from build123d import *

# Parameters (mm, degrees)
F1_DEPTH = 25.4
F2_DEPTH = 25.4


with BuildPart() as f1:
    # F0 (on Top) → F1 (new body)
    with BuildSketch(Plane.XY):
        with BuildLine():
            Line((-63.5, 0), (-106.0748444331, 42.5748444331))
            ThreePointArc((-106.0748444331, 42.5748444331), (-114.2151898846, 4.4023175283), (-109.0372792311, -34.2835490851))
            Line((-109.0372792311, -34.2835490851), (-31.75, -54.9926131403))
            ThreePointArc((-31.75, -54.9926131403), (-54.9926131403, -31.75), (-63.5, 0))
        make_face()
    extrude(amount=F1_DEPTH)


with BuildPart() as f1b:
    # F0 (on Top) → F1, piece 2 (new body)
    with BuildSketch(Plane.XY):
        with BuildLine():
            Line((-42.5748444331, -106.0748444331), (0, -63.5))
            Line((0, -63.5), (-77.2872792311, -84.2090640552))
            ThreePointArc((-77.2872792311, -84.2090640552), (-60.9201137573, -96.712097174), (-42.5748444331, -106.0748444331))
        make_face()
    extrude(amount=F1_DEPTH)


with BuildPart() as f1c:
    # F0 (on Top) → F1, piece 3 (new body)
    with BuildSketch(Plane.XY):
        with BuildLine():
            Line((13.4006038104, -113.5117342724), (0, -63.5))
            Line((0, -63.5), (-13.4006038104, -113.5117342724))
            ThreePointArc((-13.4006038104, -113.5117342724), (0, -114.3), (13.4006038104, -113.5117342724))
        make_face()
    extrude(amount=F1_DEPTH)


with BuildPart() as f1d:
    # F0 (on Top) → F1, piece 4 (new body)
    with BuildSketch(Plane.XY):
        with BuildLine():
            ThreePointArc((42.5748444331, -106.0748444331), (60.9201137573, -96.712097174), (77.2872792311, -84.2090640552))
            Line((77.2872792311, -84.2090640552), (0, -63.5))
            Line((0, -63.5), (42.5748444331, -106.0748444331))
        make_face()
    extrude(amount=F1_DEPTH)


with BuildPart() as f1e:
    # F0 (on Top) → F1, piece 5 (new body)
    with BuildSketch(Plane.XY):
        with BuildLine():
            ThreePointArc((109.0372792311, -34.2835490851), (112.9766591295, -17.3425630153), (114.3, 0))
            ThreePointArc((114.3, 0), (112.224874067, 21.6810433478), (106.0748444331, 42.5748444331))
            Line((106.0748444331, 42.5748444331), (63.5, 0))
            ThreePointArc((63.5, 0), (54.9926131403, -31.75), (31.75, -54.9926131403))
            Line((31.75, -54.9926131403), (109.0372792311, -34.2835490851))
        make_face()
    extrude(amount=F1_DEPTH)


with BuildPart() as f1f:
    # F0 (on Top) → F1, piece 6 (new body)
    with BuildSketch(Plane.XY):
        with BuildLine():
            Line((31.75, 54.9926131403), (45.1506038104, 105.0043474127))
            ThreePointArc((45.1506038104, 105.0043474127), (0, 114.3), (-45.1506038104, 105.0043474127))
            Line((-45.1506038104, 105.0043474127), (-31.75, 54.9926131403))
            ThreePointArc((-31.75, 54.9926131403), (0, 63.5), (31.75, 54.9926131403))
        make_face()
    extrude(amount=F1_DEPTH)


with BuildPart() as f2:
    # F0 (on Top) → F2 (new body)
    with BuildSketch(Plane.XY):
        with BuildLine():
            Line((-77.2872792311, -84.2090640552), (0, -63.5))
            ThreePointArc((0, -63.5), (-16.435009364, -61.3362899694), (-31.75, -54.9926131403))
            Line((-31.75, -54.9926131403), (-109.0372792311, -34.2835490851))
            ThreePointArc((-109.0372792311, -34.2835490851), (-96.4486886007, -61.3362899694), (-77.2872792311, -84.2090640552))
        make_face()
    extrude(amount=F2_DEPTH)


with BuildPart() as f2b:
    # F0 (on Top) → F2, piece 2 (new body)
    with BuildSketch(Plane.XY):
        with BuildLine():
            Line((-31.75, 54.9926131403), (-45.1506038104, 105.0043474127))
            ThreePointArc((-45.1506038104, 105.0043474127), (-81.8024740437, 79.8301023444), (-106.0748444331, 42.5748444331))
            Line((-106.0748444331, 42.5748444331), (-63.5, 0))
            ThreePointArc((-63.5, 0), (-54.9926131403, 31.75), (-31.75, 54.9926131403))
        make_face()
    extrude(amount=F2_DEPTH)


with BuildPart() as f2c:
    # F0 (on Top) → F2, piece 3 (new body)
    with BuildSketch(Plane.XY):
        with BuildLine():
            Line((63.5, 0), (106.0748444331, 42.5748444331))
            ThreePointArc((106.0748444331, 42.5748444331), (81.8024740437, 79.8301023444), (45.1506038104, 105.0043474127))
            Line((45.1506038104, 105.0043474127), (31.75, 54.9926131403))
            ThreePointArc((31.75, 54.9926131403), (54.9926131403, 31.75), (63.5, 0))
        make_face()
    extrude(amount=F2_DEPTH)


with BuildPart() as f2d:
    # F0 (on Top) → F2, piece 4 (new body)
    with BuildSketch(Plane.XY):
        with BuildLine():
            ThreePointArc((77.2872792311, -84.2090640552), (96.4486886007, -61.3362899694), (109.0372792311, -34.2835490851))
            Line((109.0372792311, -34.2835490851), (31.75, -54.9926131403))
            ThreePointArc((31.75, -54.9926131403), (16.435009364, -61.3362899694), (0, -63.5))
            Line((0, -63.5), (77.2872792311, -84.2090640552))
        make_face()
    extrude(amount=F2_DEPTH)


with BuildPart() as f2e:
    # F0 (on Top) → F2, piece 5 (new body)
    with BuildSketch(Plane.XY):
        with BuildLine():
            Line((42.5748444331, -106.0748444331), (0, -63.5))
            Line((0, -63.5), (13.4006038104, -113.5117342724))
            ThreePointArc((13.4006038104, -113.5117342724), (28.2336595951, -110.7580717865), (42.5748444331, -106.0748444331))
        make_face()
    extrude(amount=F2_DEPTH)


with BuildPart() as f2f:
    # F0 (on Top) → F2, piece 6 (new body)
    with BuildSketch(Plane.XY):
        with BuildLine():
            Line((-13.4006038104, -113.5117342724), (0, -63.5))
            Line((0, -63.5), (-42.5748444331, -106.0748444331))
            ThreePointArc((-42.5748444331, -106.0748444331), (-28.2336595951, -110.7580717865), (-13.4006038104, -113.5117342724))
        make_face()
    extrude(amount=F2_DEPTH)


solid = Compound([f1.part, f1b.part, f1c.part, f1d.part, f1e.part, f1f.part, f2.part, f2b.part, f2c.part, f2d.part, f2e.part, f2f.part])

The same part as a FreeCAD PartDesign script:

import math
import FreeCAD as App
import Part
import Sketcher
Q = App.Units.Quantity

doc = App.newDocument("Part")
params = doc.addObject("Spreadsheet::Sheet", "Params")
for row, (alias, value) in enumerate([
    ("sketch1_radius", "4.5 in"),
    ("sketch1_radius2", "2.5 in"),
    ("pad1_length", "1 in"),
    ("sketch2_radius", "4.5 in"),
    ("pad2_length", "1 in"),
    ("sketch3_radius", "4.5 in"),
    ("pad3_length", "1 in"),
    ("sketch4_radius", "4.5 in"),
    ("pad4_length", "1 in"),
    ("sketch5_radius", "4.5 in"),
    ("sketch5_radius2", "2.5 in"),
    ("pad5_length", "1 in"),
    ("sketch6_radius", "4.5 in"),
    ("sketch6_radius2", "2.5 in"),
    ("pad6_length", "1 in"),
    ("sketch7_radius", "2.5 in"),
    ("sketch7_radius2", "4.5 in"),
    ("pad7_length", "1 in"),
    ("sketch8_radius", "4.5 in"),
    ("sketch8_radius2", "2.5 in"),
    ("pad8_length", "1 in"),
    ("sketch9_radius", "4.5 in"),
    ("sketch9_radius2", "2.5 in"),
    ("pad9_length", "1 in"),
    ("sketch10_radius", "4.5 in"),
    ("sketch10_radius2", "2.5 in"),
    ("pad10_length", "1 in"),
    ("sketch11_radius", "4.5 in"),
    ("pad11_length", "1 in"),
    ("sketch12_radius", "4.5 in"),
    ("pad12_length", "1 in"),
], start=1):
    params.set(f"A{row}", alias)
    params.set(f"B{row}", "=" + value)
    params.setAlias(f"B{row}", alias)

body = doc.addObject("PartDesign::Body", "Body")

sketch1 = body.newObject("Sketcher::SketchObject", "Sketch")
sketch1.AttachmentSupport = (doc.getObject("XY_Plane"), [""])
sketch1.MapMode = "FlatFace"
sketch1.addGeometry([
    Part.LineSegment(App.Vector(-64, 0, 0), App.Vector(-106, 43, 0)),
    Part.ArcOfCircle(Part.Circle(App.Vector(0, 0, 0), App.Vector(0, 0, 1), 114), math.radians(158), math.radians(197)),
    Part.LineSegment(App.Vector(-109, -34, 0), App.Vector(-32, -55, 0)),
    Part.ArcOfCircle(Part.Circle(App.Vector(0, 0, 0), App.Vector(0, 0, 1), 64), math.radians(180), math.radians(240)),
], False)
sketch1.addConstraint([
    Sketcher.Constraint("Coincident", 0, 2, 1, 1),
    Sketcher.Constraint("Coincident", 1, 2, 2, 1),
    Sketcher.Constraint("Coincident", 2, 2, 3, 2),
    Sketcher.Constraint("Coincident", 3, 1, 0, 1),
    Sketcher.Constraint("Coincident", 1, 3, -1, 1),
    Sketcher.Constraint("Coincident", 3, 3, -1, 1),
    Sketcher.Constraint("PointOnObject", 3, 1, -1),
    Sketcher.Constraint("Radius", 1, Q("4.5 in")),
    Sketcher.Constraint("Radius", 3, Q("2.5 in")),
    Sketcher.Constraint("Angle", 0, Q("135 deg")),
    Sketcher.Constraint("Angle", 2, Q("-15 deg")),
    Sketcher.Constraint("DistanceX", 2, 2, -1, 1, Q("1.25 in")),
])
sketch1.setExpression("Constraints[7]", "Params.sketch1_radius")
sketch1.setExpression("Constraints[8]", "Params.sketch1_radius2")
pad1 = body.newObject("PartDesign::Pad", "Pad")
pad1.Profile = sketch1
pad1.setExpression("Length", "Params.pad1_length")
body2 = doc.addObject("PartDesign::Body", "Body001")

sketch2 = body2.newObject("Sketcher::SketchObject", "Sketch001")
sketch2.AttachmentSupport = (doc.getObject("XY_Plane001"), [""])
sketch2.MapMode = "FlatFace"
sketch2.addGeometry([
    Part.LineSegment(App.Vector(-43, -106, 0), App.Vector(0, -64, 0)),
    Part.LineSegment(App.Vector(0, -64, 0), App.Vector(-77, -84, 0)),
    Part.ArcOfCircle(Part.Circle(App.Vector(0, 0, 0), App.Vector(0, 0, 1), 114), math.radians(-133), math.radians(-112)),
], False)
sketch2.addConstraint([
    Sketcher.Constraint("Coincident", 0, 2, 1, 1),
    Sketcher.Constraint("Coincident", 1, 2, 2, 1),
    Sketcher.Constraint("Coincident", 2, 2, 0, 1),
    Sketcher.Constraint("Coincident", 2, 3, -1, 1),
    Sketcher.Constraint("PointOnObject", 0, 2, -2),
    Sketcher.Constraint("Radius", 2, Q("4.5 in")),
    Sketcher.Constraint("Angle", 0, Q("45 deg")),
    Sketcher.Constraint("Angle", 1, Q("-165 deg")),
    Sketcher.Constraint("DistanceY", 0, 2, -1, 1, Q("2.5 in")),
])
sketch2.setExpression("Constraints[5]", "Params.sketch2_radius")
pad2 = body2.newObject("PartDesign::Pad", "Pad001")
pad2.Profile = sketch2
pad2.setExpression("Length", "Params.pad2_length")
body3 = doc.addObject("PartDesign::Body", "Body002")

sketch3 = body3.newObject("Sketcher::SketchObject", "Sketch002")
sketch3.AttachmentSupport = (doc.getObject("XY_Plane002"), [""])
sketch3.MapMode = "FlatFace"
sketch3.addGeometry([
    Part.LineSegment(App.Vector(13, -114, 0), App.Vector(0, -64, 0)),
    Part.LineSegment(App.Vector(0, -64, 0), App.Vector(-13, -114, 0)),
    Part.ArcOfCircle(Part.Circle(App.Vector(0, 0, 0), App.Vector(0, 0, 1), 114), math.radians(-96.73), math.radians(-83.27)),
], False)
sketch3.addConstraint([
    Sketcher.Constraint("Coincident", 0, 2, 1, 1),
    Sketcher.Constraint("Coincident", 1, 2, 2, 1),
    Sketcher.Constraint("Coincident", 2, 2, 0, 1),
    Sketcher.Constraint("Coincident", 2, 3, -1, 1),
    Sketcher.Constraint("PointOnObject", 0, 2, -2),
    Sketcher.Constraint("Horizontal", 1, 2, 2, 2),
    Sketcher.Constraint("Radius", 2, Q("4.5 in")),
    Sketcher.Constraint("Angle", 0, Q("105 deg")),
    Sketcher.Constraint("DistanceY", 0, 2, -1, 1, Q("2.5 in")),
])
sketch3.setExpression("Constraints[6]", "Params.sketch3_radius")
pad3 = body3.newObject("PartDesign::Pad", "Pad002")
pad3.Profile = sketch3
pad3.setExpression("Length", "Params.pad3_length")
body4 = doc.addObject("PartDesign::Body", "Body003")

sketch4 = body4.newObject("Sketcher::SketchObject", "Sketch003")
sketch4.AttachmentSupport = (doc.getObject("XY_Plane003"), [""])
sketch4.MapMode = "FlatFace"
sketch4.addGeometry([
    Part.ArcOfCircle(Part.Circle(App.Vector(0, 0, 0), App.Vector(0, 0, 1), 114), math.radians(-68), math.radians(-47)),
    Part.LineSegment(App.Vector(77, -84, 0), App.Vector(0, -64, 0)),
    Part.LineSegment(App.Vector(0, -64, 0), App.Vector(43, -106, 0)),
], False)
sketch4.addConstraint([
    Sketcher.Constraint("Coincident", 0, 2, 1, 1),
    Sketcher.Constraint("Coincident", 1, 2, 2, 1),
    Sketcher.Constraint("Coincident", 2, 2, 0, 1),
    Sketcher.Constraint("Coincident", 0, 3, -1, 1),
    Sketcher.Constraint("PointOnObject", 1, 2, -2),
    Sketcher.Constraint("Radius", 0, Q("4.5 in")),
    Sketcher.Constraint("Angle", 1, Q("165 deg")),
    Sketcher.Constraint("Angle", 2, Q("-45 deg")),
    Sketcher.Constraint("DistanceY", 1, 2, -1, 1, Q("2.5 in")),
])
sketch4.setExpression("Constraints[5]", "Params.sketch4_radius")
pad4 = body4.newObject("PartDesign::Pad", "Pad003")
pad4.Profile = sketch4
pad4.setExpression("Length", "Params.pad4_length")
body5 = doc.addObject("PartDesign::Body", "Body004")

sketch5 = body5.newObject("Sketcher::SketchObject", "Sketch004")
sketch5.AttachmentSupport = (doc.getObject("XY_Plane004"), [""])
sketch5.MapMode = "FlatFace"
sketch5.addGeometry([
    Part.ArcOfCircle(Part.Circle(App.Vector(0, 0, 0), App.Vector(0, 0, 1), 114), math.radians(-17.45), math.radians(0)),
    Part.ArcOfCircle(Part.Circle(App.Vector(0, 0, 0), App.Vector(0, 0, 1), 114), math.radians(0), math.radians(22)),
    Part.LineSegment(App.Vector(106, 43, 0), App.Vector(64, 0, 0)),
    Part.ArcOfCircle(Part.Circle(App.Vector(0, 0, 0), App.Vector(0, 0, 1), 64), math.radians(-60), math.radians(0)),
    Part.LineSegment(App.Vector(32, -55, 0), App.Vector(109, -34, 0)),
], False)
sketch5.addConstraint([
    Sketcher.Constraint("Tangent", 0, 2, 1, 1),
    Sketcher.Constraint("Coincident", 1, 2, 2, 1),
    Sketcher.Constraint("Coincident", 2, 2, 3, 2),
    Sketcher.Constraint("Coincident", 3, 1, 4, 1),
    Sketcher.Constraint("Coincident", 4, 2, 0, 1),
    Sketcher.Constraint("Coincident", 0, 3, -1, 1),
    Sketcher.Constraint("Coincident", 3, 3, -1, 1),
    Sketcher.Constraint("Equal", 0, 1),
    Sketcher.Constraint("PointOnObject", 0, 2, -1),
    Sketcher.Constraint("PointOnObject", 2, 2, -1),
    Sketcher.Constraint("Radius", 0, Q("4.5 in")),
    Sketcher.Constraint("Radius", 3, Q("2.5 in")),
    Sketcher.Constraint("Angle", 2, Q("-135 deg")),
    Sketcher.Constraint("Angle", 4, Q("15 deg")),
    Sketcher.Constraint("DistanceX", -1, 1, 3, 1, Q("1.25 in")),
])
sketch5.setExpression("Constraints[10]", "Params.sketch5_radius")
sketch5.setExpression("Constraints[11]", "Params.sketch5_radius2")
pad5 = body5.newObject("PartDesign::Pad", "Pad004")
pad5.Profile = sketch5
pad5.setExpression("Length", "Params.pad5_length")
body6 = doc.addObject("PartDesign::Body", "Body005")

sketch6 = body6.newObject("Sketcher::SketchObject", "Sketch005")
sketch6.AttachmentSupport = (doc.getObject("XY_Plane005"), [""])
sketch6.MapMode = "FlatFace"
sketch6.addGeometry([
    Part.LineSegment(App.Vector(32, 55, 0), App.Vector(45, 105, 0)),
    Part.ArcOfCircle(Part.Circle(App.Vector(0, 0, 0), App.Vector(0, 0, 1), 114), math.radians(67), math.radians(113)),
    Part.LineSegment(App.Vector(-45, 105, 0), App.Vector(-32, 55, 0)),
    Part.ArcOfCircle(Part.Circle(App.Vector(0, 0, 0), App.Vector(0, 0, 1), 64), math.radians(60), math.radians(120)),
], False)
sketch6.addConstraint([
    Sketcher.Constraint("Coincident", 0, 2, 1, 1),
    Sketcher.Constraint("Coincident", 1, 2, 2, 1),
    Sketcher.Constraint("Coincident", 2, 2, 3, 2),
    Sketcher.Constraint("Coincident", 3, 1, 0, 1),
    Sketcher.Constraint("Coincident", 1, 3, -1, 1),
    Sketcher.Constraint("Coincident", 3, 3, -1, 1),
    Sketcher.Constraint("Horizontal", 0, 2, 1, 2),
    Sketcher.Constraint("Horizontal", 2, 2, 3, 1),
    Sketcher.Constraint("Radius", 1, Q("4.5 in")),
    Sketcher.Constraint("Radius", 3, Q("2.5 in")),
    Sketcher.Constraint("Angle", 0, Q("75 deg")),
    Sketcher.Constraint("DistanceX", 2, 2, 3, 1, Q("2.5 in")),
])
sketch6.setExpression("Constraints[8]", "Params.sketch6_radius")
sketch6.setExpression("Constraints[9]", "Params.sketch6_radius2")
pad6 = body6.newObject("PartDesign::Pad", "Pad005")
pad6.Profile = sketch6
pad6.setExpression("Length", "Params.pad6_length")
body7 = doc.addObject("PartDesign::Body", "Body006")

sketch7 = body7.newObject("Sketcher::SketchObject", "Sketch006")
sketch7.AttachmentSupport = (doc.getObject("XY_Plane006"), [""])
sketch7.MapMode = "FlatFace"
sketch7.addGeometry([
    Part.LineSegment(App.Vector(-77, -84, 0), App.Vector(0, -64, 0)),
    Part.ArcOfCircle(Part.Circle(App.Vector(0, 0, 0), App.Vector(0, 0, 1), 63), math.radians(-120), math.radians(-90)),
    Part.LineSegment(App.Vector(-32, -55, 0), App.Vector(-109, -34, 0)),
    Part.ArcOfCircle(Part.Circle(App.Vector(0, 0, 0), App.Vector(0, 0, 1), 114), math.radians(-163), math.radians(-133)),
], False)
sketch7.addConstraint([
    Sketcher.Constraint("Coincident", 0, 2, 1, 2),
    Sketcher.Constraint("Coincident", 1, 1, 2, 1),
    Sketcher.Constraint("Coincident", 2, 2, 3, 1),
    Sketcher.Constraint("Coincident", 3, 2, 0, 1),
    Sketcher.Constraint("Coincident", 1, 3, -1, 1),
    Sketcher.Constraint("Coincident", 3, 3, -1, 1),
    Sketcher.Constraint("PointOnObject", 0, 2, -2),
    Sketcher.Constraint("Equal", 0, 2),
    Sketcher.Constraint("Radius", 1, Q("2.5 in")),
    Sketcher.Constraint("Radius", 3, Q("4.5 in")),
    Sketcher.Constraint("Angle", 0, Q("15 deg")),
    Sketcher.Constraint("Angle", 2, Q("165 deg")),
])
sketch7.setExpression("Constraints[8]", "Params.sketch7_radius")
sketch7.setExpression("Constraints[9]", "Params.sketch7_radius2")
pad7 = body7.newObject("PartDesign::Pad", "Pad006")
pad7.Profile = sketch7
pad7.setExpression("Length", "Params.pad7_length")
body8 = doc.addObject("PartDesign::Body", "Body007")

sketch8 = body8.newObject("Sketcher::SketchObject", "Sketch007")
sketch8.AttachmentSupport = (doc.getObject("XY_Plane007"), [""])
sketch8.MapMode = "FlatFace"
sketch8.addGeometry([
    Part.LineSegment(App.Vector(-32, 55, 0), App.Vector(-45, 105, 0)),
    Part.ArcOfCircle(Part.Circle(App.Vector(0, 0, 0), App.Vector(0, 0, 1), 114), math.radians(113), math.radians(158)),
    Part.LineSegment(App.Vector(-106, 43, 0), App.Vector(-64, 0, 0)),
    Part.ArcOfCircle(Part.Circle(App.Vector(0, 0, 0), App.Vector(0, 0, 1), 64), math.radians(120), math.radians(180)),
], False)
sketch8.addConstraint([
    Sketcher.Constraint("Coincident", 0, 2, 1, 1),
    Sketcher.Constraint("Coincident", 1, 2, 2, 1),
    Sketcher.Constraint("Coincident", 2, 2, 3, 2),
    Sketcher.Constraint("Coincident", 3, 1, 0, 1),
    Sketcher.Constraint("Coincident", 1, 3, -1, 1),
    Sketcher.Constraint("Coincident", 3, 3, -1, 1),
    Sketcher.Constraint("PointOnObject", 2, 2, -1),
    Sketcher.Constraint("Radius", 1, Q("4.5 in")),
    Sketcher.Constraint("Radius", 3, Q("2.5 in")),
    Sketcher.Constraint("Angle", 0, Q("105 deg")),
    Sketcher.Constraint("Angle", 2, Q("-45 deg")),
    Sketcher.Constraint("DistanceX", 3, 1, -1, 1, Q("1.25 in")),
])
sketch8.setExpression("Constraints[7]", "Params.sketch8_radius")
sketch8.setExpression("Constraints[8]", "Params.sketch8_radius2")
pad8 = body8.newObject("PartDesign::Pad", "Pad007")
pad8.Profile = sketch8
pad8.setExpression("Length", "Params.pad8_length")
body9 = doc.addObject("PartDesign::Body", "Body008")

sketch9 = body9.newObject("Sketcher::SketchObject", "Sketch008")
sketch9.AttachmentSupport = (doc.getObject("XY_Plane008"), [""])
sketch9.MapMode = "FlatFace"
sketch9.addGeometry([
    Part.LineSegment(App.Vector(64, 0, 0), App.Vector(106, 43, 0)),
    Part.ArcOfCircle(Part.Circle(App.Vector(0, 0, 0), App.Vector(0, 0, 1), 114), math.radians(22), math.radians(67)),
    Part.LineSegment(App.Vector(45, 105, 0), App.Vector(32, 55, 0)),
    Part.ArcOfCircle(Part.Circle(App.Vector(0, 0, 0), App.Vector(0, 0, 1), 64), math.radians(0), math.radians(60)),
], False)
sketch9.addConstraint([
    Sketcher.Constraint("Coincident", 0, 2, 1, 1),
    Sketcher.Constraint("Coincident", 1, 2, 2, 1),
    Sketcher.Constraint("Coincident", 2, 2, 3, 2),
    Sketcher.Constraint("Coincident", 3, 1, 0, 1),
    Sketcher.Constraint("Coincident", 1, 3, -1, 1),
    Sketcher.Constraint("Coincident", 3, 3, -1, 1),
    Sketcher.Constraint("PointOnObject", 3, 1, -1),
    Sketcher.Constraint("Radius", 1, Q("4.5 in")),
    Sketcher.Constraint("Radius", 3, Q("2.5 in")),
    Sketcher.Constraint("Angle", 0, Q("45 deg")),
    Sketcher.Constraint("Angle", 2, Q("-105 deg")),
    Sketcher.Constraint("DistanceX", -1, 1, 2, 2, Q("1.25 in")),
])
sketch9.setExpression("Constraints[7]", "Params.sketch9_radius")
sketch9.setExpression("Constraints[8]", "Params.sketch9_radius2")
pad9 = body9.newObject("PartDesign::Pad", "Pad008")
pad9.Profile = sketch9
pad9.setExpression("Length", "Params.pad9_length")
body10 = doc.addObject("PartDesign::Body", "Body009")

sketch10 = body10.newObject("Sketcher::SketchObject", "Sketch009")
sketch10.AttachmentSupport = (doc.getObject("XY_Plane009"), [""])
sketch10.MapMode = "FlatFace"
sketch10.addGeometry([
    Part.ArcOfCircle(Part.Circle(App.Vector(0, 0, 0), App.Vector(0, 0, 1), 114), math.radians(-47), math.radians(-17)),
    Part.LineSegment(App.Vector(109, -34, 0), App.Vector(32, -55, 0)),
    Part.ArcOfCircle(Part.Circle(App.Vector(0, 0, 0), App.Vector(0, 0, 1), 63), math.radians(-90), math.radians(-60)),
    Part.LineSegment(App.Vector(0, -64, 0), App.Vector(77, -84, 0)),
], False)
sketch10.addConstraint([
    Sketcher.Constraint("Coincident", 0, 2, 1, 1),
    Sketcher.Constraint("Coincident", 1, 2, 2, 2),
    Sketcher.Constraint("Coincident", 2, 1, 3, 1),
    Sketcher.Constraint("Coincident", 3, 2, 0, 1),
    Sketcher.Constraint("Coincident", 0, 3, -1, 1),
    Sketcher.Constraint("Coincident", 2, 3, -1, 1),
    Sketcher.Constraint("PointOnObject", 2, 1, -2),
    Sketcher.Constraint("Equal", 1, 3),
    Sketcher.Constraint("Radius", 0, Q("4.5 in")),
    Sketcher.Constraint("Radius", 2, Q("2.5 in")),
    Sketcher.Constraint("Angle", 1, Q("-165 deg")),
    Sketcher.Constraint("Angle", 3, Q("-15 deg")),
])
sketch10.setExpression("Constraints[8]", "Params.sketch10_radius")
sketch10.setExpression("Constraints[9]", "Params.sketch10_radius2")
pad10 = body10.newObject("PartDesign::Pad", "Pad009")
pad10.Profile = sketch10
pad10.setExpression("Length", "Params.pad10_length")
body11 = doc.addObject("PartDesign::Body", "Body010")

sketch11 = body11.newObject("Sketcher::SketchObject", "Sketch010")
sketch11.AttachmentSupport = (doc.getObject("XY_Plane010"), [""])
sketch11.MapMode = "FlatFace"
sketch11.addGeometry([
    Part.LineSegment(App.Vector(43, -106, 0), App.Vector(0, -64, 0)),
    Part.LineSegment(App.Vector(0, -64, 0), App.Vector(13, -114, 0)),
    Part.ArcOfCircle(Part.Circle(App.Vector(0, 0, 0), App.Vector(0, 0, 1), 114), math.radians(-83.27), math.radians(-68.13)),
], False)
sketch11.addConstraint([
    Sketcher.Constraint("Coincident", 0, 2, 1, 1),
    Sketcher.Constraint("Coincident", 1, 2, 2, 1),
    Sketcher.Constraint("Coincident", 2, 2, 0, 1),
    Sketcher.Constraint("Coincident", 2, 3, -1, 1),
    Sketcher.Constraint("PointOnObject", 0, 2, -2),
    Sketcher.Constraint("Radius", 2, Q("4.5 in")),
    Sketcher.Constraint("Angle", 0, Q("135 deg")),
    Sketcher.Constraint("Angle", 1, Q("-75 deg")),
    Sketcher.Constraint("DistanceY", 0, 2, -1, 1, Q("2.5 in")),
])
sketch11.setExpression("Constraints[5]", "Params.sketch11_radius")
pad11 = body11.newObject("PartDesign::Pad", "Pad010")
pad11.Profile = sketch11
pad11.setExpression("Length", "Params.pad11_length")
body12 = doc.addObject("PartDesign::Body", "Body011")

sketch12 = body12.newObject("Sketcher::SketchObject", "Sketch011")
sketch12.AttachmentSupport = (doc.getObject("XY_Plane011"), [""])
sketch12.MapMode = "FlatFace"
sketch12.addGeometry([
    Part.LineSegment(App.Vector(-13, -114, 0), App.Vector(0, -64, 0)),
    Part.LineSegment(App.Vector(0, -64, 0), App.Vector(-43, -106, 0)),
    Part.ArcOfCircle(Part.Circle(App.Vector(0, 0, 0), App.Vector(0, 0, 1), 114), math.radians(-111.87), math.radians(-96.73)),
], False)
sketch12.addConstraint([
    Sketcher.Constraint("Coincident", 0, 2, 1, 1),
    Sketcher.Constraint("Coincident", 1, 2, 2, 1),
    Sketcher.Constraint("Coincident", 2, 2, 0, 1),
    Sketcher.Constraint("Coincident", 2, 3, -1, 1),
    Sketcher.Constraint("PointOnObject", 0, 2, -2),
    Sketcher.Constraint("Radius", 2, Q("4.5 in")),
    Sketcher.Constraint("Angle", 0, Q("75 deg")),
    Sketcher.Constraint("Angle", 1, Q("-135 deg")),
    Sketcher.Constraint("DistanceY", 0, 2, -1, 1, Q("2.5 in")),
])
sketch12.setExpression("Constraints[5]", "Params.sketch12_radius")
pad12 = body12.newObject("PartDesign::Pad", "Pad011")
pad12.Profile = sketch12
pad12.setExpression("Length", "Params.pad12_length")

doc.recompute()
